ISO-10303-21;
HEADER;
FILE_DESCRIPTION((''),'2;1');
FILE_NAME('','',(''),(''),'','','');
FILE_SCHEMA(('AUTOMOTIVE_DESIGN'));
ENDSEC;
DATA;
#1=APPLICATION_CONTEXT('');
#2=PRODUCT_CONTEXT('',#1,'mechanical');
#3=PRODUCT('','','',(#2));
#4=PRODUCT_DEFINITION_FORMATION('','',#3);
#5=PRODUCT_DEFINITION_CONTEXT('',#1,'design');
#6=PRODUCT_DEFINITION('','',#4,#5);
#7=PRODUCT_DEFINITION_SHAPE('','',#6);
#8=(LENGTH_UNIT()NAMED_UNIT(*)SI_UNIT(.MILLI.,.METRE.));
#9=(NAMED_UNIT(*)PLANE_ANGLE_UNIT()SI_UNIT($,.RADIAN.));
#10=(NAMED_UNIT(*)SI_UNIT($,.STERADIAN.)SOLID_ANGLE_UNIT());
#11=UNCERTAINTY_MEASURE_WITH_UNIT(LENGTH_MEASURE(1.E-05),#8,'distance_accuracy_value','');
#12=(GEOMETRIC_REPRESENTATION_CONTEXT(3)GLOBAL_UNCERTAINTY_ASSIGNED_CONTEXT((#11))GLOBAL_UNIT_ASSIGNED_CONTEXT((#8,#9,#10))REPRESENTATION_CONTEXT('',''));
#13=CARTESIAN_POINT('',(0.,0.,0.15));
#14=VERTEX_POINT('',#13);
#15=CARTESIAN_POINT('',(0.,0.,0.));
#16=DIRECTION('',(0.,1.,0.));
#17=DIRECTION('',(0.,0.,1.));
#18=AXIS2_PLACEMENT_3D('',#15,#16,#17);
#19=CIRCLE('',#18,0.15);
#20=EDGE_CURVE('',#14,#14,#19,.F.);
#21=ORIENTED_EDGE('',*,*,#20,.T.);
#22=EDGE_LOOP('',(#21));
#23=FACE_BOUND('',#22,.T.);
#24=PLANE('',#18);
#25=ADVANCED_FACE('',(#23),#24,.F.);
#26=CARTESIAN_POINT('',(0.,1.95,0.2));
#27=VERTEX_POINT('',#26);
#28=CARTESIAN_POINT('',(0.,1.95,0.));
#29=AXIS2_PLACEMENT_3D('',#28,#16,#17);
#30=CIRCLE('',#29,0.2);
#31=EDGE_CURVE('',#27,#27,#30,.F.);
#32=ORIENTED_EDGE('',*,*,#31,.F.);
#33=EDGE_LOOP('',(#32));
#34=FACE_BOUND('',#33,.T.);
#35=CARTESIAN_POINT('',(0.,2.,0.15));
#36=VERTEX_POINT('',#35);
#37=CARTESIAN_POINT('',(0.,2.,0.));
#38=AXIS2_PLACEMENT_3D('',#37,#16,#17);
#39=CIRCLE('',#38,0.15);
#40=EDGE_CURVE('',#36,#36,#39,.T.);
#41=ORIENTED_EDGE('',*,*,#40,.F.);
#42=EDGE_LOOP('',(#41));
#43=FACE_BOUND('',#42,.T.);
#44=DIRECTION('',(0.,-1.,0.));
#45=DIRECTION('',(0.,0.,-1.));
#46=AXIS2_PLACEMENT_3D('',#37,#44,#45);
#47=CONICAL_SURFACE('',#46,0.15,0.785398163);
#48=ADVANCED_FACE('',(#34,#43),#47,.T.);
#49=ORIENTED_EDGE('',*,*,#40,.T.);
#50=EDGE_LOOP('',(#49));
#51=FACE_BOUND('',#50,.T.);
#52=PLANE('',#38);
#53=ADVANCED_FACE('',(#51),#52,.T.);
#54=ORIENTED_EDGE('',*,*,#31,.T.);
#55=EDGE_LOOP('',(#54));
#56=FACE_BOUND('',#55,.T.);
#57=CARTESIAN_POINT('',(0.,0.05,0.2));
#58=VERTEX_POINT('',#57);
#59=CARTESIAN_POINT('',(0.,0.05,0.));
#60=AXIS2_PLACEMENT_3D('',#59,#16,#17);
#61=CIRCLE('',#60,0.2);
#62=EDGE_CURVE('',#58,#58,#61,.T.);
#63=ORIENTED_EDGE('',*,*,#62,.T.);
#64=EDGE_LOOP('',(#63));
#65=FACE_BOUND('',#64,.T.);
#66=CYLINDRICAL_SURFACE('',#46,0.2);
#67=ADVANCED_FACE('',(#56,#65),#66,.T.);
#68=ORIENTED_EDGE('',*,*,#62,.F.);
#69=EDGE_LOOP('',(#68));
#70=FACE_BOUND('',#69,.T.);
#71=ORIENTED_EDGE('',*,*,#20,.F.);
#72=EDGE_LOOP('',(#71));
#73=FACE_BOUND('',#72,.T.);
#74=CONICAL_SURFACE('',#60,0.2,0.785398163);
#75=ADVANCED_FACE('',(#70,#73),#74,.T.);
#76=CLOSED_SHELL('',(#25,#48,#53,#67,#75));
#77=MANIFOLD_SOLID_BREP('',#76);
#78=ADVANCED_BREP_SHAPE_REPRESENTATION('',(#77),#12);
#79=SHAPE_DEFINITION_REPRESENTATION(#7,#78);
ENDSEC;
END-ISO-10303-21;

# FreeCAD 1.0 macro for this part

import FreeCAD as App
import Part
import Sketcher

V = App.Vector
Q = App.Units.Quantity


def edges_at(feature, points):
    """Names of the edges that pass closest to the given points."""
    edges = feature.Shape.Edges
    near = lambda p: min(range(len(edges)), key=lambda i: edges[i].distToShape(Part.Vertex(*p))[0])
    return sorted({f"Edge{near(p) + 1}" for p in points})

doc = App.newDocument("Part")
body = doc.addObject("PartDesign::Body", "Body")

# Sketch on XZ plane
sketch1 = doc.addObject("Sketcher::SketchObject", "Sketch")
body.addObject(sketch1)
sketch1.AttachmentSupport = (doc.XZ_Plane, [""])
sketch1.MapMode = "FlatFace"
sketch1.addGeometry(Part.Circle(V(0, 0, 0), V(0, 0, 1), 0.2), False)
sketch1.addConstraint([
    Sketcher.Constraint("Coincident", 0, 3, -1, 1),
    Sketcher.Constraint("Diameter", 0, Q("0.4 mm")),
])
pad1 = doc.addObject("PartDesign::Pad", "Pad")
body.addObject(pad1)
pad1.Profile = sketch1
pad1.Length = 2
pad1.Reversed = True
doc.recompute()

chamfer = doc.addObject("PartDesign::Chamfer", "Chamfer")
body.addObject(chamfer)
chamfer.Base = (pad1, edges_at(pad1, [(-0.2, 0, 0), (-0.2, 2, 0)]))
chamfer.Size = 0.05

doc.recompute()
